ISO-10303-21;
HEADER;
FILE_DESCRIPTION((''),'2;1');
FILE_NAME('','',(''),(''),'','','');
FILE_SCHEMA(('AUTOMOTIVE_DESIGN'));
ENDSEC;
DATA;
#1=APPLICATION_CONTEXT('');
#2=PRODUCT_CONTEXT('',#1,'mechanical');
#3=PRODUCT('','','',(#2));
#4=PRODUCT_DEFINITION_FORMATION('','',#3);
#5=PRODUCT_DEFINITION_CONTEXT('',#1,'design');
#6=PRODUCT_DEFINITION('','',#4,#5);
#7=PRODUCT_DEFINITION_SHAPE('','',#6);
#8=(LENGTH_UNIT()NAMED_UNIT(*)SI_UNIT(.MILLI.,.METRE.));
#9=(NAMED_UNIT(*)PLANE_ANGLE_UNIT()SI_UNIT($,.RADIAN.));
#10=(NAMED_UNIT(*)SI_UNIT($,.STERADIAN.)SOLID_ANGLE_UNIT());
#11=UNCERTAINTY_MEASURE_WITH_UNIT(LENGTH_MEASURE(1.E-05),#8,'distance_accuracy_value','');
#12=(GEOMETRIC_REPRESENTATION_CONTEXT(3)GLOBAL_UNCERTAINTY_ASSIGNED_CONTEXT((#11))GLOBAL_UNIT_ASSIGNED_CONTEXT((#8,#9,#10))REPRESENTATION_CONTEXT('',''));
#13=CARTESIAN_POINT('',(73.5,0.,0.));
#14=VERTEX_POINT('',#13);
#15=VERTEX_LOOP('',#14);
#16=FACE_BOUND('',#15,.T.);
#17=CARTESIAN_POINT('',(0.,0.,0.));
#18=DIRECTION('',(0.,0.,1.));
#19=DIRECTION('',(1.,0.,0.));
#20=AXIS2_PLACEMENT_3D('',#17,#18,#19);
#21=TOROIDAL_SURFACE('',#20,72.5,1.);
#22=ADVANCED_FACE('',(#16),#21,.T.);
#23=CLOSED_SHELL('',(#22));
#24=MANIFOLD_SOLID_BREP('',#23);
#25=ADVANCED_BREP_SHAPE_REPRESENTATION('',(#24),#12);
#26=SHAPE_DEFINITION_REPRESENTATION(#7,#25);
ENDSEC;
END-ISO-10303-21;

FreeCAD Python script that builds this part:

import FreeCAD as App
import Part
import Sketcher
from FreeCAD import Vector

doc = App.newDocument("Part")
params = doc.addObject("Spreadsheet::Sheet", "Params")
for row, (alias, value) in enumerate([
    ("sketch1_diameter", "2 mm"),
    ("revolution_angle", "360 deg"),
], start=1):
    params.set(f"A{row}", alias)
    params.set(f"B{row}", "=" + value)
    params.setAlias(f"B{row}", alias)

body = doc.addObject("PartDesign::Body", "Body")

sketch1 = body.newObject("Sketcher::SketchObject", "Sketch")
sketch1.AttachmentSupport = (doc.getObject("YZ_Plane"), [""])
sketch1.MapMode = "FlatFace"
sketch1.addGeometry(Part.Circle(Vector(72.5, 0, 0), Vector(0, 0, 1), 1), False)
sketch1.addConstraint([
    Sketcher.Constraint("PointOnObject", 0, 3, -1),
    Sketcher.Constraint("Diameter", 0, 2.0),
    Sketcher.Constraint("DistanceX", -1, 1, 0, 3, 72.5),
])
sketch1.setExpression("Constraints[1]", "Params.sketch1_diameter")
revolution = body.newObject("PartDesign::Revolution", "Revolution")
revolution.Profile = sketch1
revolution.ReferenceAxis = (sketch1, ["V_Axis"])
revolution.setExpression("Angle", "Params.revolution_angle")

doc.recompute()
